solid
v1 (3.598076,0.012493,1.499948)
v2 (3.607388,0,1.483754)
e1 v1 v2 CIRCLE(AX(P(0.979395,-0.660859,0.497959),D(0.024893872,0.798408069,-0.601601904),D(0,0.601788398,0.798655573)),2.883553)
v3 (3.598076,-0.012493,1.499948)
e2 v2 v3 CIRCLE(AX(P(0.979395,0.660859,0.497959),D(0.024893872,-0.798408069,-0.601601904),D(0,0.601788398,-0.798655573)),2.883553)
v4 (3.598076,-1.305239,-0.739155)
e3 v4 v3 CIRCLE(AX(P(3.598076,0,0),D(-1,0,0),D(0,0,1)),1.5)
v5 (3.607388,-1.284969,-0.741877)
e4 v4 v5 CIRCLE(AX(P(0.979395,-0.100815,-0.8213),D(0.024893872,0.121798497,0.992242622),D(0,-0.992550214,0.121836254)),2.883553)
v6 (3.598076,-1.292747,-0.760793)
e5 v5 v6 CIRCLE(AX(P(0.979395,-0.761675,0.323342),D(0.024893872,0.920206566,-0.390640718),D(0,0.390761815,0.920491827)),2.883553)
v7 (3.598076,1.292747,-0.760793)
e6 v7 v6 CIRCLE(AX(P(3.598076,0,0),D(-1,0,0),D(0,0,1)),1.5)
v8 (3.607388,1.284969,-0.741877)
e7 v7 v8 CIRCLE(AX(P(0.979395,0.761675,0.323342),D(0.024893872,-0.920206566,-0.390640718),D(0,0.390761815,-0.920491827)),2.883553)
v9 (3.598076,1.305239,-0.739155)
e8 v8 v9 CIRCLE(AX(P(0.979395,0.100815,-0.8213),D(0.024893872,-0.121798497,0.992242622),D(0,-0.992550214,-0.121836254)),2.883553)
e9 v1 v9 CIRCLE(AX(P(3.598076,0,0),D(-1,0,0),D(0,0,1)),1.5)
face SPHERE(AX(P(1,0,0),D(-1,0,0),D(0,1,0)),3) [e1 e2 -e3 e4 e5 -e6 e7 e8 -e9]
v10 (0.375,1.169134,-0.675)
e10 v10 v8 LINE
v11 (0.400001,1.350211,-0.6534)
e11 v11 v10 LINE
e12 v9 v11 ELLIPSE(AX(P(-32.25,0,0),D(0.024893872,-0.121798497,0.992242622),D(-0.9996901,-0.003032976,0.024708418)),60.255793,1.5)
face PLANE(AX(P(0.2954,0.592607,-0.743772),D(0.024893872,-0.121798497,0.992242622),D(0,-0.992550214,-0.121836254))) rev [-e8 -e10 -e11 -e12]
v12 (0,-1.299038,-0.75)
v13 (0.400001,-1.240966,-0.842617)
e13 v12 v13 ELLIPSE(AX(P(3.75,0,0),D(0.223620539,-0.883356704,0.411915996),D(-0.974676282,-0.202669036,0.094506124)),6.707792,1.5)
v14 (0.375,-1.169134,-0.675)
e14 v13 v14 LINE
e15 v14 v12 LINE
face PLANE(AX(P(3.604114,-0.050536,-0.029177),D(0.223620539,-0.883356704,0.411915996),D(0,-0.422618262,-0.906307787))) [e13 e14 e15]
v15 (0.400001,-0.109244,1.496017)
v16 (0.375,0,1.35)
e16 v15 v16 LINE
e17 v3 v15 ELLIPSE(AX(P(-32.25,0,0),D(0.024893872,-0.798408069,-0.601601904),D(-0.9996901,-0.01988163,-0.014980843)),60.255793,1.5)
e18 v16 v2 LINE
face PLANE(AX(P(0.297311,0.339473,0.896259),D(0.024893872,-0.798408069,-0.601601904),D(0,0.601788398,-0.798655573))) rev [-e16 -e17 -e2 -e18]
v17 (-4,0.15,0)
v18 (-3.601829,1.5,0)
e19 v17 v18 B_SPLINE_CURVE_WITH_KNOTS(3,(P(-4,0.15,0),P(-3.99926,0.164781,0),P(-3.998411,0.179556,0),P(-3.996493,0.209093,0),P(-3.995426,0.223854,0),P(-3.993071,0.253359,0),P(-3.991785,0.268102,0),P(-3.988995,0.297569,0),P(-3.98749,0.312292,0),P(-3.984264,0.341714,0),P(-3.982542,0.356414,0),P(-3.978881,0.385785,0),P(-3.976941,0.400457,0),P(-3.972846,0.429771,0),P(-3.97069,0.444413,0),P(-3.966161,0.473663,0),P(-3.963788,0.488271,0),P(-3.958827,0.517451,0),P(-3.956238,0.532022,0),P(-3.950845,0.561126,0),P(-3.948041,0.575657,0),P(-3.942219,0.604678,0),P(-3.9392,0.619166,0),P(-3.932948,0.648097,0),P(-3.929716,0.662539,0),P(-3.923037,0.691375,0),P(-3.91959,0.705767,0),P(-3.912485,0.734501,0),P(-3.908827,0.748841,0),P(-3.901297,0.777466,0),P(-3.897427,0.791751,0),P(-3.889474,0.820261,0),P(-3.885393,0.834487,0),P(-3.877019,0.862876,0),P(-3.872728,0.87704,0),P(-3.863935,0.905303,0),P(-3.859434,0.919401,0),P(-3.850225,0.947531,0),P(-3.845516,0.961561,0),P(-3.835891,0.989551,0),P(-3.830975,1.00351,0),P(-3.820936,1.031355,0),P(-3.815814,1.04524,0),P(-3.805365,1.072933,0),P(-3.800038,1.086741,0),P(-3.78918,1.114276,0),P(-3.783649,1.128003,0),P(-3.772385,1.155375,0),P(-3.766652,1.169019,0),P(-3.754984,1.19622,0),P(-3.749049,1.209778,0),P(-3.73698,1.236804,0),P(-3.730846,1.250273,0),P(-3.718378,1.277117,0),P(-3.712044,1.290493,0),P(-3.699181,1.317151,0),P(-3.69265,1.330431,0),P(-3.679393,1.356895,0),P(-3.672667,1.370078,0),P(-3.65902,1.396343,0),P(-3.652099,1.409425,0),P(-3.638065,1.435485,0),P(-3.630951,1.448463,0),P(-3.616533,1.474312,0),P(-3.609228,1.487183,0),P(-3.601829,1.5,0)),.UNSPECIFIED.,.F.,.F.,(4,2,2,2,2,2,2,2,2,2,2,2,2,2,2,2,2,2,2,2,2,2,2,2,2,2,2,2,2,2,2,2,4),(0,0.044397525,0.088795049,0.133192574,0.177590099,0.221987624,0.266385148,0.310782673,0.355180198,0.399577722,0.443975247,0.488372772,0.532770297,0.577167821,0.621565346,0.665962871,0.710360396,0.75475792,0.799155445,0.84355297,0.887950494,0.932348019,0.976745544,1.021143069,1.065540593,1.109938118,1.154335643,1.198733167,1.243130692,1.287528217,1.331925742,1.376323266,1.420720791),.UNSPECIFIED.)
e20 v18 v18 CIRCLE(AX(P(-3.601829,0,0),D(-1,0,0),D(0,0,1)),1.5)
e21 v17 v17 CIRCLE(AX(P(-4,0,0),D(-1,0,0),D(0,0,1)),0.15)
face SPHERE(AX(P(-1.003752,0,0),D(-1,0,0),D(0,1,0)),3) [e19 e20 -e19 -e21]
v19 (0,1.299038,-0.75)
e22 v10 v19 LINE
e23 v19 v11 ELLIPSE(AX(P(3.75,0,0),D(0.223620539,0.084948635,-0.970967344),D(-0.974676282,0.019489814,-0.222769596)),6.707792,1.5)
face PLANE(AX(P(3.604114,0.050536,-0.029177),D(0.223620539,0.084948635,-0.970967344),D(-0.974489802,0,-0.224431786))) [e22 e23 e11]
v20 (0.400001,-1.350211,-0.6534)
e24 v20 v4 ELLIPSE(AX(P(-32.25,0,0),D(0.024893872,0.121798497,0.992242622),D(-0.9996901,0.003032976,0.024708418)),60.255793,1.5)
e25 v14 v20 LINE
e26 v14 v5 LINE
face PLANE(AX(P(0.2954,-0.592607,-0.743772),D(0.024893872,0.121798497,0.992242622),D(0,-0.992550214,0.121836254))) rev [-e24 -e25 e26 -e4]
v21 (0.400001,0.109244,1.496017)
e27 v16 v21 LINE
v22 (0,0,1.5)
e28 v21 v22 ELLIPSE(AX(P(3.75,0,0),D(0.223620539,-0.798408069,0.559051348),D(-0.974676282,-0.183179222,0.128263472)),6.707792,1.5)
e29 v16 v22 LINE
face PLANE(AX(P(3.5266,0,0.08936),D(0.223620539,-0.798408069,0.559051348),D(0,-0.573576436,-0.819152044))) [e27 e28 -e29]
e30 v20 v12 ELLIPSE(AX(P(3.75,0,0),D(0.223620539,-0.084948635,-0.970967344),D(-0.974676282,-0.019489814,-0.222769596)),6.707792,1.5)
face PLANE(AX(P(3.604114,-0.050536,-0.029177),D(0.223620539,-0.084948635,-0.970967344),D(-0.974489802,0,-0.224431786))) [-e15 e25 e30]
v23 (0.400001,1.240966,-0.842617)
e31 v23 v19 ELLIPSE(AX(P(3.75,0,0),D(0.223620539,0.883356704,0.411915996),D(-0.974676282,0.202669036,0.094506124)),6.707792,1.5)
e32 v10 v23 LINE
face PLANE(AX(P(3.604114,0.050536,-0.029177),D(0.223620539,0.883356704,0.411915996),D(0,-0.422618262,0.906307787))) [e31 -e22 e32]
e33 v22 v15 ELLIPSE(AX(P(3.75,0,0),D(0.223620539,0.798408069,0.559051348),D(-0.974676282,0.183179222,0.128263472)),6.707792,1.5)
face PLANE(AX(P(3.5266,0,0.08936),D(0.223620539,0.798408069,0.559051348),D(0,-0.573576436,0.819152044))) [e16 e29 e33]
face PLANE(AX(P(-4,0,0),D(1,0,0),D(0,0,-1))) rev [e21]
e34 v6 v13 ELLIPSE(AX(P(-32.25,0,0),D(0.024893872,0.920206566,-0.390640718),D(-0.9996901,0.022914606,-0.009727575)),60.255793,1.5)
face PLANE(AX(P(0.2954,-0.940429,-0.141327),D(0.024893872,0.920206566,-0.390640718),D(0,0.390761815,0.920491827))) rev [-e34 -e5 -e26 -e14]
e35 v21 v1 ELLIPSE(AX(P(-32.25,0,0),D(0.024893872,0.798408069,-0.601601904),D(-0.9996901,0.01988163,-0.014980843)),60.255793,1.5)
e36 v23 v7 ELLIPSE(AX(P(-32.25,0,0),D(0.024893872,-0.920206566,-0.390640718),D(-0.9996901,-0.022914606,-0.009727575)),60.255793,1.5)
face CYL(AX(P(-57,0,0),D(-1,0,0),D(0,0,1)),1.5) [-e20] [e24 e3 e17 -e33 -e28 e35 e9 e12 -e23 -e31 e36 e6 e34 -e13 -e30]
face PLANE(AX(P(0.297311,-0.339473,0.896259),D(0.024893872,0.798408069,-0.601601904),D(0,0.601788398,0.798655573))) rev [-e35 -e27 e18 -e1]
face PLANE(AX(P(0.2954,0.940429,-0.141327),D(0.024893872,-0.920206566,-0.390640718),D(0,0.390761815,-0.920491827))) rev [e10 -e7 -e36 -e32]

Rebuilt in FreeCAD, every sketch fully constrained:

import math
import FreeCAD as App
import Part
import Sketcher
from FreeCAD import Vector
Q = App.Units.Quantity


def add_polygon(sketch, points):
    """Adds a closed chain of lines whose ends are joined by coincident constraints."""
    first, n = sketch.GeometryCount, len(points)
    for a, b in zip(points, points[1:] + points[:1]):
        sketch.addGeometry(Part.LineSegment(App.Vector(*a, 0), App.Vector(*b, 0)), False)
    for i in range(n):
        sketch.addConstraint(Sketcher.Constraint("Coincident", first + i, 2, first + (i + 1) % n, 1))

doc = App.newDocument("Part")
body = doc.addObject("PartDesign::Body", "Body")

# Sketch on XY plane
sketch1 = body.newObject("Sketcher::SketchObject", "Sketch")
sketch1.AttachmentSupport = (doc.getObject("XY_Plane"), [""])
sketch1.MapMode = "FlatFace"
sketch1.addGeometry(Part.LineSegment(Vector(-4, 0.15, 0), Vector(-4, 0, 0)), False)
sketch1.addGeometry(Part.LineSegment(Vector(-4, 0, 0), Vector(4, 0, 0)), False)
sketch1.addGeometry(Part.ArcOfCircle(Part.Circle(Vector(1, 0, 0), Vector(0, 0, 1), 3), math.radians(0), math.radians(30)), False)
sketch1.addGeometry(Part.LineSegment(Vector(3.6, 1.5, 0), Vector(-3.6, 1.5, 0)), False)
sketch1.addGeometry(Part.ArcOfCircle(Part.Circle(Vector(-1, 0, 0), Vector(0, 0, 1), 3), math.radians(150), math.radians(177)), False)
sketch1.addConstraint(Sketcher.Constraint("Coincident", 0, 2, 1, 1))
sketch1.addConstraint(Sketcher.Constraint("Coincident", 1, 2, 2, 1))
sketch1.addConstraint(Sketcher.Constraint("Coincident", 2, 2, 3, 1))
sketch1.addConstraint(Sketcher.Constraint("Coincident", 3, 2, 4, 1))
sketch1.addConstraint(Sketcher.Constraint("Coincident", 4, 2, 0, 1))
sketch1.addConstraint(Sketcher.Constraint("Vertical", 0))
sketch1.addConstraint(Sketcher.Constraint("Horizontal", 1))
sketch1.addConstraint(Sketcher.Constraint("Horizontal", 3))
sketch1.addConstraint(Sketcher.Constraint("Equal", 2, 4))
sketch1.addConstraint(Sketcher.Constraint("Symmetric", 0, 2, 1, 2, -1, 1))
sketch1.addConstraint(Sketcher.Constraint("PointOnObject", 2, 3, -1))
sketch1.addConstraint(Sketcher.Constraint("PointOnObject", 4, 3, -1))
sketch1.addConstraint(Sketcher.Constraint("Radius", 2, 3.0))
sketch1.addConstraint(Sketcher.Constraint("DistanceX", 1, 1, 1, 2, 8.0))
sketch1.addConstraint(Sketcher.Constraint("DistanceY", 0, 2, 0, 1, 0.15))
sketch1.addConstraint(Sketcher.Constraint("DistanceY", -1, 1, 2, 2, 1.5))
revolution = body.newObject("PartDesign::Revolution", "Revolution")
revolution.Profile = sketch1
revolution.ReferenceAxis = (sketch1, ["H_Axis"])
revolution.Angle = 360

# Sketch on YZ plane
sketch2 = body.newObject("Sketcher::SketchObject", "Sketch001")
sketch2.AttachmentSupport = (doc.getObject("YZ_Plane"), [""])
sketch2.MapMode = "FlatFace"
add_polygon(sketch2, [(0, 1.5), (1.3, 3.4), (-1.3, 3.4)])  # lines 0-2
sketch2.addConstraint(Sketcher.Constraint("Horizontal", 1))
sketch2.addConstraint(Sketcher.Constraint("PointOnObject", 2, 2, -2))
sketch2.addConstraint(Sketcher.Constraint("Equal", 0, 2))
sketch2.addConstraint(Sketcher.Constraint("Angle", 0, Q("55 deg")))
sketch2.addConstraint(Sketcher.Constraint("DistanceY", -1, 1, 2, 2, 1.5))
sketch2.addConstraint(Sketcher.Constraint("DistanceX", 1, 2, 1, 1, 2.630482))

# Sketch on XZ plane
sketch3 = body.newObject("Sketcher::SketchObject", "Sketch002")
sketch3.AttachmentSupport = (doc.getObject("XZ_Plane"), [""])
sketch3.MapMode = "FlatFace"
sketch3.addGeometry(Part.LineSegment(Vector(0, 1.5, 0), Vector(0.38, 1.35, 0)), False)
sketch3.addGeometry(Part.LineSegment(Vector(0.38, 1.35, 0), Vector(4, 1.5, 0)), False)
sketch3.addConstraint(Sketcher.Constraint("Coincident", 0, 2, 1, 1))
sketch3.addConstraint(Sketcher.Constraint("PointOnObject", 0, 1, -2))
sketch3.addConstraint(Sketcher.Constraint("Horizontal", 0, 1, 1, 2))
sketch3.addConstraint(Sketcher.Constraint("DistanceX", -1, 1, 1, 2, 4.0))
sketch3.addConstraint(Sketcher.Constraint("DistanceY", -1, 1, 0, 1, 1.5))
sketch3.addConstraint(Sketcher.Constraint("DistanceY", -1, 1, 0, 2, 1.35))
sketch3.addConstraint(Sketcher.Constraint("DistanceX", -1, 1, 0, 2, 0.375))
doc.recompute()

subtractivepipe = body.newObject("PartDesign::SubtractivePipe", "SubtractivePipe")
subtractivepipe.Profile = sketch2
subtractivepipe.Spine = (sketch3, ["Edge1", "Edge2"])
subtractivepipe.Transition = "Right corner"
doc.recompute()

polarpattern = body.newObject("PartDesign::PolarPattern", "PolarPattern")
polarpattern.Originals = [subtractivepipe]
polarpattern.Axis = (doc.getObject("X_Axis"), [""])
polarpattern.Angle = 360
polarpattern.Occurrences = 3
body.Tip = polarpattern

doc.recompute()
